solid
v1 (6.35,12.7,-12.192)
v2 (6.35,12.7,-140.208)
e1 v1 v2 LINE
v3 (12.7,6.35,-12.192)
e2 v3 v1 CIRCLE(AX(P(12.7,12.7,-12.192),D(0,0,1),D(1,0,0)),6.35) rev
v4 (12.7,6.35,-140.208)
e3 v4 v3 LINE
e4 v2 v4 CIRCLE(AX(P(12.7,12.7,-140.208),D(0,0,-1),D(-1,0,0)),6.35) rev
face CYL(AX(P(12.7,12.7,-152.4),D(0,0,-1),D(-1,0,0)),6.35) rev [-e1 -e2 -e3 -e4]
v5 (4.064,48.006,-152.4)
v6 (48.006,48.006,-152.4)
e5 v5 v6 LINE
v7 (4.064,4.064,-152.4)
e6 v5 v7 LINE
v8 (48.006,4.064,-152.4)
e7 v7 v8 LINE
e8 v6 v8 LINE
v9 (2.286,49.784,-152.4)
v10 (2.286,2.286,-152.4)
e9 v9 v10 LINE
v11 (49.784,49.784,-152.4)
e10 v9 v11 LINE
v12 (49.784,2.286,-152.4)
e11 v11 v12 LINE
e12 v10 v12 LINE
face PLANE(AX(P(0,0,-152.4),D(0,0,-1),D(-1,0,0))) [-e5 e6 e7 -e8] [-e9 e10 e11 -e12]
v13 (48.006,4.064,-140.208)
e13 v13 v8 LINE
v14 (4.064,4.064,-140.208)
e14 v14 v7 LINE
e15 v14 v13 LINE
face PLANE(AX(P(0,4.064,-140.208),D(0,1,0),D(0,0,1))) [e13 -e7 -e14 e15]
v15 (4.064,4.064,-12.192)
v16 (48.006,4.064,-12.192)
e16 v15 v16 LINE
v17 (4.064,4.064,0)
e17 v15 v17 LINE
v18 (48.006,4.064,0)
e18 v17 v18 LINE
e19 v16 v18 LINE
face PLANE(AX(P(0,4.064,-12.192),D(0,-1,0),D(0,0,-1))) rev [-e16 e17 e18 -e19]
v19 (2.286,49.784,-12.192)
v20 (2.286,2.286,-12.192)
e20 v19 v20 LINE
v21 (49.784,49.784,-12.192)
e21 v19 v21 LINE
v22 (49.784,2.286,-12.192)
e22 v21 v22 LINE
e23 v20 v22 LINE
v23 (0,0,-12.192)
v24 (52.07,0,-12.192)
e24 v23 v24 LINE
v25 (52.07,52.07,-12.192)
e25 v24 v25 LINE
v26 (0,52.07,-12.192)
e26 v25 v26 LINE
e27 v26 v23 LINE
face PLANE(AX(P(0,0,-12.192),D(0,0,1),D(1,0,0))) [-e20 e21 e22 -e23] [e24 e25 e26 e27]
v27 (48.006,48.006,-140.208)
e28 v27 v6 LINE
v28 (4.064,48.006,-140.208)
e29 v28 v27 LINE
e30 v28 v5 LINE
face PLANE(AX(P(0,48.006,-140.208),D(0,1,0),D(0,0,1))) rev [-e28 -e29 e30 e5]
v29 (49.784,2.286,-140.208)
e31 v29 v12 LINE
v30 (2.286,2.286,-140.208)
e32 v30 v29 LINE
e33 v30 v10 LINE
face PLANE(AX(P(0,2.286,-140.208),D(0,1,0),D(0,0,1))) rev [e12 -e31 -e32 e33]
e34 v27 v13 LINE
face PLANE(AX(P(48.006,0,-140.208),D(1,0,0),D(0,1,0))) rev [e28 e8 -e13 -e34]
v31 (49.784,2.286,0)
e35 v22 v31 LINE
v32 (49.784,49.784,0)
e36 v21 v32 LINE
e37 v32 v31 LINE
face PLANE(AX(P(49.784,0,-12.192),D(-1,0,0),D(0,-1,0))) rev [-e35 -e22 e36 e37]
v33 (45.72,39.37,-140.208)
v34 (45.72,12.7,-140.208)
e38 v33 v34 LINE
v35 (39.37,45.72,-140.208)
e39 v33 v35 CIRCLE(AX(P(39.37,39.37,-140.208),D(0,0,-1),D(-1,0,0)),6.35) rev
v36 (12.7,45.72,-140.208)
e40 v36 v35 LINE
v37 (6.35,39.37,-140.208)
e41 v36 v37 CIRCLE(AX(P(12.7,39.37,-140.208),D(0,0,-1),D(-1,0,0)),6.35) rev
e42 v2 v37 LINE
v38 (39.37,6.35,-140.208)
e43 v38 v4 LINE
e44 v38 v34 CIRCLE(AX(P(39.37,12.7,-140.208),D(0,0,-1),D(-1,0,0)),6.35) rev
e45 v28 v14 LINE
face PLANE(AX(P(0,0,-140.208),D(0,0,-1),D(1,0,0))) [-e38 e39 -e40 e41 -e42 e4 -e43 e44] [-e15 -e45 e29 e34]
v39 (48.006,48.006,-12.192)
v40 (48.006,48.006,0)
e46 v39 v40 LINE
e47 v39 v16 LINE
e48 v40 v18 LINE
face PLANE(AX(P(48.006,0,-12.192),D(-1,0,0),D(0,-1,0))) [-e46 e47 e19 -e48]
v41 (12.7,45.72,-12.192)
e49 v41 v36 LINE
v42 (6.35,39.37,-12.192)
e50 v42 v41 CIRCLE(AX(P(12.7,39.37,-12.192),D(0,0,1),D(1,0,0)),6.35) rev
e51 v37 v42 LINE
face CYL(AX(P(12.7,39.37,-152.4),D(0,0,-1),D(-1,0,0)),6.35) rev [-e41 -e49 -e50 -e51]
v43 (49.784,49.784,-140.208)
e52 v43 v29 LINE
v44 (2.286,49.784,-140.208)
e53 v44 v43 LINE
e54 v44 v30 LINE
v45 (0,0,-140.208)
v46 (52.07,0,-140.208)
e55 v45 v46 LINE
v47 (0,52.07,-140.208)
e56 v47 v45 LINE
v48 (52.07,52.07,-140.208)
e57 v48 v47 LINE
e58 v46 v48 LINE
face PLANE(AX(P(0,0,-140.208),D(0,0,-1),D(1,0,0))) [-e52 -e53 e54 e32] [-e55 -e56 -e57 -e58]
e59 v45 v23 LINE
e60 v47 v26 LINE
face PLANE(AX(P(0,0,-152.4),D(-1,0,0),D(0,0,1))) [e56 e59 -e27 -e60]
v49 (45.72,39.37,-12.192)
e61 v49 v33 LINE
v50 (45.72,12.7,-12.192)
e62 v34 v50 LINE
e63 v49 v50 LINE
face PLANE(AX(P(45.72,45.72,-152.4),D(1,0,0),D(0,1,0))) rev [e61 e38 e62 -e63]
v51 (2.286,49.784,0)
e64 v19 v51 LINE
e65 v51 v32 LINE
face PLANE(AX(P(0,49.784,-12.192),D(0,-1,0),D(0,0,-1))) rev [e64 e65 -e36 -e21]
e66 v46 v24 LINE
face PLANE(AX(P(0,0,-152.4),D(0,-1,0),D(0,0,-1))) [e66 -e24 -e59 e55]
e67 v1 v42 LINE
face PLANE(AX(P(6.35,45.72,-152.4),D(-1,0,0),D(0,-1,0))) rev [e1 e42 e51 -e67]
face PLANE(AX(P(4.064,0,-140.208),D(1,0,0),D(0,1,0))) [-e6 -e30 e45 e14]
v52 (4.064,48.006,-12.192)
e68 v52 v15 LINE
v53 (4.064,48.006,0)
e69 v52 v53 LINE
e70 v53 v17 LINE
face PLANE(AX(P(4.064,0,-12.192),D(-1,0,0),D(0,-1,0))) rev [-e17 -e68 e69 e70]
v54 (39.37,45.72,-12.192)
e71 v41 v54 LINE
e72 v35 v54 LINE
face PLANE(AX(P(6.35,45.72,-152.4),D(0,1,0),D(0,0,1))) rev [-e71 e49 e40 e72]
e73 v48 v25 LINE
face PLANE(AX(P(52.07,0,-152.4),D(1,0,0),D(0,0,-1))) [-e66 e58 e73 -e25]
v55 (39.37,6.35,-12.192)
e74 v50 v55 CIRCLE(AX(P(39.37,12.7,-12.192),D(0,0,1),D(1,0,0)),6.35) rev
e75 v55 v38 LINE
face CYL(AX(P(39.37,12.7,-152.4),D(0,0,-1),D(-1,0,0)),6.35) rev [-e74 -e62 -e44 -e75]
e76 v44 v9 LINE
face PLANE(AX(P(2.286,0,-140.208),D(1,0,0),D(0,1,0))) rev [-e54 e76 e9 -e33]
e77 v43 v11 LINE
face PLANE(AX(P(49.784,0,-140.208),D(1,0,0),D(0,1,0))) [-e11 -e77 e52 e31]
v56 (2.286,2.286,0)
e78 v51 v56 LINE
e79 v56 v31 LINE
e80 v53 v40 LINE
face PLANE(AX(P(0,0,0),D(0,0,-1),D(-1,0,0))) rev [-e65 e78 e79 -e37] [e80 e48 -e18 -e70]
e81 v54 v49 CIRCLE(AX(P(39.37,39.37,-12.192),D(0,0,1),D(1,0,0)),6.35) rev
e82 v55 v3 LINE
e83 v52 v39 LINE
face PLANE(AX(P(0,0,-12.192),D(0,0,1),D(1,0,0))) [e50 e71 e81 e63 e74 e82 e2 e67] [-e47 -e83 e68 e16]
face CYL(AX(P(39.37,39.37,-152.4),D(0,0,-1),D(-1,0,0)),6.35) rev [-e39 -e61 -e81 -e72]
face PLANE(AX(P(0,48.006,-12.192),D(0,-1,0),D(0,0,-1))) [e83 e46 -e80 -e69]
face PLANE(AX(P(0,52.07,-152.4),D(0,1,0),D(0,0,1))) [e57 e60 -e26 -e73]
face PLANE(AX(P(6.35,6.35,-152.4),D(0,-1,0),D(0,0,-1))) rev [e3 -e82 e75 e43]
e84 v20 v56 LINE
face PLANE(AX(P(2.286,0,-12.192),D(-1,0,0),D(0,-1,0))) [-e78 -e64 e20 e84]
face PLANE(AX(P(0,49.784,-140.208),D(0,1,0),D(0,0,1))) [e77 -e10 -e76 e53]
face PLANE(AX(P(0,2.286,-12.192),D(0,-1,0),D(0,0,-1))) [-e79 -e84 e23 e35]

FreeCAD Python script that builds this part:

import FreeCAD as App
import Part
import Sketcher

V = App.Vector
Q = App.Units.Quantity


def edges_at(feature, points):
    """Names of the edges that pass closest to the given points."""
    edges = feature.Shape.Edges
    near = lambda p: min(range(len(edges)), key=lambda i: edges[i].distToShape(Part.Vertex(*p))[0])
    return sorted({f"Edge{near(p) + 1}" for p in points})


def add_polygon(sketch, points):
    """Adds a closed chain of lines whose ends are joined by coincident constraints."""
    first, n = sketch.GeometryCount, len(points)
    for a, b in zip(points, points[1:] + points[:1]):
        sketch.addGeometry(Part.LineSegment(App.Vector(*a, 0), App.Vector(*b, 0)), False)
    for i in range(n):
        sketch.addConstraint(Sketcher.Constraint("Coincident", first + i, 2, first + (i + 1) % n, 1))

doc = App.newDocument("Part")
body = doc.addObject("PartDesign::Body", "Body")

sketch1 = body.newObject("Sketcher::SketchObject", "Sketch")
sketch1.AttachmentSupport = (doc.getObject("XY_Plane"), [""])
sketch1.MapMode = "FlatFace"
add_polygon(sketch1, [(0, 52), (0, 0), (52, 0), (52, 52)])
sketch1.addConstraint(Sketcher.Constraint("Vertical", 0))
sketch1.addConstraint(Sketcher.Constraint("Horizontal", 1))
sketch1.addConstraint(Sketcher.Constraint("Vertical", 2))
sketch1.addConstraint(Sketcher.Constraint("Horizontal", 3))
sketch1.addConstraint(Sketcher.Constraint("Coincident", 0, 2, -1, 1))
sketch1.addConstraint(Sketcher.Constraint("Equal", 3, 0))
sketch1.addConstraint(Sketcher.Constraint("DistanceX", 1, 1, 1, 2, Q("2.05 in")))
pad1 = body.newObject("PartDesign::Pad", "Pad")
pad1.Profile = sketch1
pad1.Length = Q("6 in")
pad1.Reversed = True

sketch2 = body.newObject("Sketcher::SketchObject", "Sketch001")
sketch2.AttachmentSupport = (doc.getObject("XY_Plane"), [""])
sketch2.MapMode = "FlatFace"
add_polygon(sketch2, [(6, 46), (6, 6), (46, 6), (46, 46)])
sketch2.addConstraint(Sketcher.Constraint("Vertical", 0))
sketch2.addConstraint(Sketcher.Constraint("Horizontal", 1))
sketch2.addConstraint(Sketcher.Constraint("Vertical", 2))
sketch2.addConstraint(Sketcher.Constraint("Horizontal", 3))
sketch2.addConstraint(Sketcher.Constraint("Equal", 3, 0))
sketch2.addConstraint(Sketcher.Constraint("DistanceX", 1, 1, 1, 2, Q("1.55 in")))
sketch2.addConstraint(Sketcher.Constraint("DistanceX", -1, 1, 1, 2, Q("1.8 in")))
sketch2.addConstraint(Sketcher.Constraint("DistanceY", -1, 1, 2, 2, Q("1.8 in")))
pocket1 = body.newObject("PartDesign::Pocket", "Pocket")
pocket1.Profile = sketch2
pocket1.Type = "ThroughAll"

sketch3 = body.newObject("Sketcher::SketchObject", "Sketch002")
sketch3.AttachmentSupport = (doc.getObject("XY_Plane"), [""])
sketch3.MapMode = "FlatFace"
add_polygon(sketch3, [(0, 52), (0, 0), (52, 0), (52, 52)])
add_polygon(sketch3, [(50, 2), (2, 2), (2, 50), (50, 50)])
add_polygon(sketch3, [(4, 48), (4, 4), (48, 4), (48, 48)])
add_polygon(sketch3, [(46, 6), (6, 6), (6, 46), (46, 46)])
sketch3.addConstraint(Sketcher.Constraint("Vertical", 0))
sketch3.addConstraint(Sketcher.Constraint("Horizontal", 1))
sketch3.addConstraint(Sketcher.Constraint("Vertical", 2))
sketch3.addConstraint(Sketcher.Constraint("Horizontal", 3))
sketch3.addConstraint(Sketcher.Constraint("Horizontal", 4))
sketch3.addConstraint(Sketcher.Constraint("Vertical", 5))
sketch3.addConstraint(Sketcher.Constraint("Horizontal", 6))
sketch3.addConstraint(Sketcher.Constraint("Vertical", 7))
sketch3.addConstraint(Sketcher.Constraint("Vertical", 8))
sketch3.addConstraint(Sketcher.Constraint("Horizontal", 9))
sketch3.addConstraint(Sketcher.Constraint("Vertical", 10))
sketch3.addConstraint(Sketcher.Constraint("Horizontal", 11))
sketch3.addConstraint(Sketcher.Constraint("Horizontal", 12))
sketch3.addConstraint(Sketcher.Constraint("Vertical", 13))
sketch3.addConstraint(Sketcher.Constraint("Horizontal", 14))
sketch3.addConstraint(Sketcher.Constraint("Vertical", 15))
sketch3.addConstraint(Sketcher.Constraint("Coincident", 0, 2, -1, 1))
sketch3.addConstraint(Sketcher.Constraint("Equal", 3, 0))
sketch3.addConstraint(Sketcher.Constraint("Equal", 6, 5))
sketch3.addConstraint(Sketcher.Constraint("Equal", 11, 8))
sketch3.addConstraint(Sketcher.Constraint("Equal", 14, 13))
sketch3.addConstraint(Sketcher.Constraint("DistanceX", 1, 1, 1, 2, Q("2.05 in")))
sketch3.addConstraint(Sketcher.Constraint("DistanceX", 4, 2, 4, 1, Q("1.87 in")))
sketch3.addConstraint(Sketcher.Constraint("DistanceX", 9, 1, 9, 2, Q("1.73 in")))
sketch3.addConstraint(Sketcher.Constraint("DistanceX", 12, 2, 12, 1, Q("1.55 in")))
sketch3.addConstraint(Sketcher.Constraint("DistanceY", -1, 1, 13, 2, Q("1.8 in")))
sketch3.addConstraint(Sketcher.Constraint("DistanceX", -1, 1, 14, 2, Q("1.8 in")))
sketch3.addConstraint(Sketcher.Constraint("DistanceY", 8, 2, 5, 2, Q("1.8 in")))
sketch3.addConstraint(Sketcher.Constraint("DistanceX", 8, 2, 7, 2, Q("1.8 in")))
sketch3.addConstraint(Sketcher.Constraint("DistanceX", -1, 1, 4, 2, Q("0.09 in")))
sketch3.addConstraint(Sketcher.Constraint("DistanceY", -1, 1, 4, 2, Q("0.09 in")))
pocket2 = body.newObject("PartDesign::Pocket", "Pocket001")
pocket2.Profile = sketch3
pocket2.Length = Q("0.48 in")
doc.recompute()

datumplane = body.newObject("PartDesign::Plane", "DatumPlane")
datumplane.AttachmentSupport = (doc.getObject("XY_Plane"), [""])
datumplane.MapMode = "FlatFace"
datumplane.AttachmentOffset = App.Placement(V(0, 0, -3 * 25.4), App.Rotation())
mirrored = body.newObject("PartDesign::Mirrored", "Mirrored")
mirrored.Originals = [pocket2]
mirrored.MirrorPlane = (datumplane, [""])
body.Tip = mirrored
doc.recompute()

fillet = body.newObject("PartDesign::Fillet", "Fillet")
fillet.Base = (mirrored, edges_at(mirrored, [
    (45.72, 6.35, -76.2),
    (6.35, 6.35, -76.2),
    (45.72, 45.72, -76.2),
    (6.35, 45.72, -76.2),
]))
fillet.Radius = Q("0.25 in")

doc.recompute()
